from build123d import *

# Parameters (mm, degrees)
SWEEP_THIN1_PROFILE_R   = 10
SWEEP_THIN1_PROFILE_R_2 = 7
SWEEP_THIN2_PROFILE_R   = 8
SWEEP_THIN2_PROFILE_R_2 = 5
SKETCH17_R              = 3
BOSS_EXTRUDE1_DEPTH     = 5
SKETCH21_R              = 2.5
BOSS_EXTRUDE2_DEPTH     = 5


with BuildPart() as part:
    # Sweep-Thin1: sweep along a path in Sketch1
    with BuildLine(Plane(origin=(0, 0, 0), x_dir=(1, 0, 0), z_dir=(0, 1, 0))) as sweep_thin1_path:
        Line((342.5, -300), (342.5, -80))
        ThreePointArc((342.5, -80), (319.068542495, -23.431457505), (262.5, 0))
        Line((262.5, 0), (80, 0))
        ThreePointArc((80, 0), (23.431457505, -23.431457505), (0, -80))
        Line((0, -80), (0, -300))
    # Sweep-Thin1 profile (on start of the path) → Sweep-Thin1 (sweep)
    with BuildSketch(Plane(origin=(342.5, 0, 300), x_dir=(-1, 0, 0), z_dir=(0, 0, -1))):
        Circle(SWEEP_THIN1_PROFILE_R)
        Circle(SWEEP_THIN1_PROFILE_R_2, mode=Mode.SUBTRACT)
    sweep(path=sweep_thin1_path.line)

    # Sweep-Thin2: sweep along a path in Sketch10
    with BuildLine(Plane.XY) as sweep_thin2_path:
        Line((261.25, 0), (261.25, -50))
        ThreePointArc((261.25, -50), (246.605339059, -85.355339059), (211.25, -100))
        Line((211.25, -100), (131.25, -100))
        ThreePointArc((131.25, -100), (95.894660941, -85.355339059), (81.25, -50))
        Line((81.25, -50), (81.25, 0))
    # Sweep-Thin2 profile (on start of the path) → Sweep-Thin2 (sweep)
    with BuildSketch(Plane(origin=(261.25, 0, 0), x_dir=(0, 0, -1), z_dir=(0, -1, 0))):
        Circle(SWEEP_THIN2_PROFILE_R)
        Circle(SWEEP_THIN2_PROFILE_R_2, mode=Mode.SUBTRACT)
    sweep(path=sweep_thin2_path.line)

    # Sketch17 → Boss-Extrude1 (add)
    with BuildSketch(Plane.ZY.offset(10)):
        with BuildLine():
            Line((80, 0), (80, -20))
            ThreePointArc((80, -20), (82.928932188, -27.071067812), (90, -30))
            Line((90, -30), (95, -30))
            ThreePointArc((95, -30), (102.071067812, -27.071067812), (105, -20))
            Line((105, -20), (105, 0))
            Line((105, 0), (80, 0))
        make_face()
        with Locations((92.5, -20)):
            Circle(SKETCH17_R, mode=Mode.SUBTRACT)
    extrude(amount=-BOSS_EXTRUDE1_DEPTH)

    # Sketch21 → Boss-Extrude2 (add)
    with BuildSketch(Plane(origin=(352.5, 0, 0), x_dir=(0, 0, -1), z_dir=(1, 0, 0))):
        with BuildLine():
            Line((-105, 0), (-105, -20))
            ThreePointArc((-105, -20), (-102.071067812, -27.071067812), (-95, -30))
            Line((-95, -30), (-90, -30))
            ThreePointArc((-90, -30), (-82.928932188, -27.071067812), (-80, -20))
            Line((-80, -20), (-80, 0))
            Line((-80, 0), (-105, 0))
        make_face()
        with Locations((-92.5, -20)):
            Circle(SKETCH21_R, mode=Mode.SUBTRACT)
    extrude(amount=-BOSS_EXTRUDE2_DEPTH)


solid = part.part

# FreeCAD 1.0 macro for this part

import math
import FreeCAD as App
import Part
import Sketcher

doc = App.newDocument("Part")
body = doc.addObject("PartDesign::Body", "Body")

sketch1 = doc.addObject("Sketcher::SketchObject", "Sketch")
body.addObject(sketch1)
sketch1.AttachmentSupport = (doc.XY_Plane, [""])
sketch1.MapMode = "FlatFace"
sketch1.AttachmentOffset = App.Placement(App.Vector(0, 0, 300), App.Rotation())
sketch1.addGeometry(Part.Circle(App.Vector(342.5, 0, 0), App.Vector(0, 0, 1), 10), False)
sketch1.addGeometry(Part.Circle(App.Vector(342.5, 0, 0), App.Vector(0, 0, 1), 7), False)
sketch1.addConstraint(Sketcher.Constraint("Coincident", 1, 3, 0, 3))
sketch1.addConstraint(Sketcher.Constraint("PointOnObject", 0, 3, -1))
sketch1.addConstraint(Sketcher.Constraint("Diameter", 0, 20.0))
sketch1.addConstraint(Sketcher.Constraint("Diameter", 1, 14.0))
sketch1.addConstraint(Sketcher.Constraint("DistanceX", -1, 1, 0, 3, 342.5))

sketch2 = doc.addObject("Sketcher::SketchObject", "Sketch001")
body.addObject(sketch2)
sketch2.AttachmentSupport = (doc.XZ_Plane, [""])
sketch2.MapMode = "FlatFace"
sketch2.addGeometry(Part.LineSegment(App.Vector(342.5, 300, 0), App.Vector(342.5, 80, 0)), False)
sketch2.addGeometry(Part.ArcOfCircle(Part.Circle(App.Vector(262.5, 80, 0), App.Vector(0, 0, 1), 80), math.radians(-90), math.radians(0)), False)
sketch2.addGeometry(Part.LineSegment(App.Vector(262.5, 0, 0), App.Vector(80, 0, 0)), False)
sketch2.addGeometry(Part.ArcOfCircle(Part.Circle(App.Vector(80, 80, 0), App.Vector(0, 0, 1), 80), math.radians(180), math.radians(270)), False)
sketch2.addGeometry(Part.LineSegment(App.Vector(0, 80, 0), App.Vector(0, 300, 0)), False)
sketch2.addConstraint(Sketcher.Constraint("Tangent", 0, 2, 1, 2))
sketch2.addConstraint(Sketcher.Constraint("Tangent", 1, 1, 2, 1))
sketch2.addConstraint(Sketcher.Constraint("Tangent", 2, 2, 3, 2))
sketch2.addConstraint(Sketcher.Constraint("Tangent", 3, 1, 4, 1))
sketch2.addConstraint(Sketcher.Constraint("Vertical", 0))
sketch2.addConstraint(Sketcher.Constraint("Horizontal", 2))
sketch2.addConstraint(Sketcher.Constraint("Vertical", 4))
sketch2.addConstraint(Sketcher.Constraint("Equal", 1, 3))
sketch2.addConstraint(Sketcher.Constraint("PointOnObject", 1, 1, -1))
sketch2.addConstraint(Sketcher.Constraint("PointOnObject", 3, 1, -2))
sketch2.addConstraint(Sketcher.Constraint("Horizontal", 0, 1, 4, 2))
sketch2.addConstraint(Sketcher.Constraint("Radius", 1, 80.0))
sketch2.addConstraint(Sketcher.Constraint("DistanceY", 0, 2, 0, 1, 220.0))
sketch2.addConstraint(Sketcher.Constraint("DistanceX", 2, 2, 2, 1, 182.5))
doc.recompute()

additivepipe = doc.addObject("PartDesign::AdditivePipe", "AdditivePipe")
body.addObject(additivepipe)
additivepipe.Profile = sketch1
additivepipe.Spine = (sketch2, ["Edge1", "Edge2", "Edge3", "Edge4", "Edge5"])

sketch3 = doc.addObject("Sketcher::SketchObject", "Sketch002")
body.addObject(sketch3)
sketch3.AttachmentSupport = (doc.XZ_Plane, [""])
sketch3.MapMode = "FlatFace"
sketch3.addGeometry(Part.Circle(App.Vector(261.25, 0, 0), App.Vector(0, 0, 1), 8), False)
sketch3.addGeometry(Part.Circle(App.Vector(261.25, 0, 0), App.Vector(0, 0, 1), 5), False)
sketch3.addConstraint(Sketcher.Constraint("Coincident", 1, 3, 0, 3))
sketch3.addConstraint(Sketcher.Constraint("PointOnObject", 0, 3, -1))
sketch3.addConstraint(Sketcher.Constraint("Diameter", 0, 16.0))
sketch3.addConstraint(Sketcher.Constraint("Diameter", 1, 10.0))
sketch3.addConstraint(Sketcher.Constraint("DistanceX", -1, 1, 0, 3, 261.25))

sketch4 = doc.addObject("Sketcher::SketchObject", "Sketch003")
body.addObject(sketch4)
sketch4.AttachmentSupport = (doc.XY_Plane, [""])
sketch4.MapMode = "FlatFace"
sketch4.addGeometry(Part.LineSegment(App.Vector(261.25, 0, 0), App.Vector(261.25, -50, 0)), False)
sketch4.addGeometry(Part.ArcOfCircle(Part.Circle(App.Vector(211.25, -50, 0), App.Vector(0, 0, 1), 50), math.radians(-90), math.radians(0)), False)
sketch4.addGeometry(Part.LineSegment(App.Vector(211.25, -100, 0), App.Vector(131.25, -100, 0)), False)
sketch4.addGeometry(Part.ArcOfCircle(Part.Circle(App.Vector(131.25, -50, 0), App.Vector(0, 0, 1), 50), math.radians(-180), math.radians(-90)), False)
sketch4.addGeometry(Part.LineSegment(App.Vector(81.25, -50, 0), App.Vector(81.25, 0, 0)), False)
sketch4.addConstraint(Sketcher.Constraint("Tangent", 0, 2, 1, 2))
sketch4.addConstraint(Sketcher.Constraint("Tangent", 1, 1, 2, 1))
sketch4.addConstraint(Sketcher.Constraint("Tangent", 2, 2, 3, 2))
sketch4.addConstraint(Sketcher.Constraint("Tangent", 3, 1, 4, 1))
sketch4.addConstraint(Sketcher.Constraint("Vertical", 0))
sketch4.addConstraint(Sketcher.Constraint("Horizontal", 2))
sketch4.addConstraint(Sketcher.Constraint("Vertical", 4))
sketch4.addConstraint(Sketcher.Constraint("Equal", 1, 3))
sketch4.addConstraint(Sketcher.Constraint("PointOnObject", 0, 1, -1))
sketch4.addConstraint(Sketcher.Constraint("PointOnObject", 4, 2, -1))
sketch4.addConstraint(Sketcher.Constraint("Radius", 1, 50.0))
sketch4.addConstraint(Sketcher.Constraint("DistanceX", 2, 2, 2, 1, 80.0))
sketch4.addConstraint(Sketcher.Constraint("DistanceY", 0, 2, 0, 1, 50.0))
sketch4.addConstraint(Sketcher.Constraint("DistanceX", -1, 1, 1, 3, 211.25))
doc.recompute()

additivepipe2 = doc.addObject("PartDesign::AdditivePipe", "AdditivePipe001")
body.addObject(additivepipe2)
additivepipe2.Profile = sketch3
additivepipe2.Spine = (sketch4, ["Edge1", "Edge2", "Edge3", "Edge4", "Edge5"])

sketch5 = doc.addObject("Sketcher::SketchObject", "Sketch004")
body.addObject(sketch5)
sketch5.AttachmentSupport = (doc.YZ_Plane, [""])
sketch5.MapMode = "FlatFace"
sketch5.AttachmentOffset = App.Placement(App.Vector(0, 0, -10), App.Rotation())
sketch5.addGeometry(Part.LineSegment(App.Vector(0, 80, 0), App.Vector(-20, 80, 0)), False)
sketch5.addGeometry(Part.ArcOfCircle(Part.Circle(App.Vector(-20, 90, 0), App.Vector(0, 0, 1), 10), math.radians(180), math.radians(270)), False)
sketch5.addGeometry(Part.LineSegment(App.Vector(-30, 90, 0), App.Vector(-30, 95, 0)), False)
sketch5.addGeometry(Part.ArcOfCircle(Part.Circle(App.Vector(-20, 95, 0), App.Vector(0, 0, 1), 10), math.radians(90), math.radians(180)), False)
sketch5.addGeometry(Part.LineSegment(App.Vector(-20, 105, 0), App.Vector(0, 105, 0)), False)
sketch5.addGeometry(Part.LineSegment(App.Vector(0, 105, 0), App.Vector(0, 80, 0)), False)
sketch5.addGeometry(Part.Circle(App.Vector(-20, 92.5, 0), App.Vector(0, 0, 1), 3), False)
sketch5.addConstraint(Sketcher.Constraint("Tangent", 0, 2, 1, 2))
sketch5.addConstraint(Sketcher.Constraint("Tangent", 1, 1, 2, 1))
sketch5.addConstraint(Sketcher.Constraint("Tangent", 2, 2, 3, 2))
sketch5.addConstraint(Sketcher.Constraint("Tangent", 3, 1, 4, 1))
sketch5.addConstraint(Sketcher.Constraint("Coincident", 4, 2, 5, 1))
sketch5.addConstraint(Sketcher.Constraint("Coincident", 5, 2, 0, 1))
sketch5.addConstraint(Sketcher.Constraint("Horizontal", 0))
sketch5.addConstraint(Sketcher.Constraint("Vertical", 2))
sketch5.addConstraint(Sketcher.Constraint("Horizontal", 4))
sketch5.addConstraint(Sketcher.Constraint("Vertical", 5))
sketch5.addConstraint(Sketcher.Constraint("Equal", 1, 3))
sketch5.addConstraint(Sketcher.Constraint("PointOnObject", 4, 2, -2))
sketch5.addConstraint(Sketcher.Constraint("Vertical", 3, 3, 6, 3))
sketch5.addConstraint(Sketcher.Constraint("Diameter", 6, 6.0))
sketch5.addConstraint(Sketcher.Constraint("Radius", 1, 10.0))
sketch5.addConstraint(Sketcher.Constraint("DistanceX", 0, 2, 0, 1, 20.0))
sketch5.addConstraint(Sketcher.Constraint("DistanceY", 2, 1, 2, 2, 5.0))
sketch5.addConstraint(Sketcher.Constraint("DistanceY", -1, 1, 1, 3, 90.0))
sketch5.addConstraint(Sketcher.Constraint("DistanceY", -1, 1, 6, 3, 92.5))
pad1 = doc.addObject("PartDesign::Pad", "Pad")
body.addObject(pad1)
pad1.Profile = sketch5
pad1.Length = 5

sketch6 = doc.addObject("Sketcher::SketchObject", "Sketch005")
body.addObject(sketch6)
sketch6.AttachmentSupport = (doc.YZ_Plane, [""])
sketch6.MapMode = "FlatFace"
sketch6.AttachmentOffset = App.Placement(App.Vector(0, 0, 352.5), App.Rotation())
sketch6.addGeometry(Part.LineSegment(App.Vector(0, 105, 0), App.Vector(-20, 105, 0)), False)
sketch6.addGeometry(Part.ArcOfCircle(Part.Circle(App.Vector(-20, 95, 0), App.Vector(0, 0, 1), 10), math.radians(90), math.radians(180)), False)
sketch6.addGeometry(Part.LineSegment(App.Vector(-30, 95, 0), App.Vector(-30, 90, 0)), False)
sketch6.addGeometry(Part.ArcOfCircle(Part.Circle(App.Vector(-20, 90, 0), App.Vector(0, 0, 1), 10), math.radians(180), math.radians(270)), False)
sketch6.addGeometry(Part.LineSegment(App.Vector(-20, 80, 0), App.Vector(0, 80, 0)), False)
sketch6.addGeometry(Part.LineSegment(App.Vector(0, 80, 0), App.Vector(0, 105, 0)), False)
sketch6.addGeometry(Part.Circle(App.Vector(-20, 92.5, 0), App.Vector(0, 0, 1), 2.5), False)
sketch6.addConstraint(Sketcher.Constraint("Tangent", 0, 2, 1, 1))
sketch6.addConstraint(Sketcher.Constraint("Tangent", 1, 2, 2, 1))
sketch6.addConstraint(Sketcher.Constraint("Tangent", 2, 2, 3, 1))
sketch6.addConstraint(Sketcher.Constraint("Tangent", 3, 2, 4, 1))
sketch6.addConstraint(Sketcher.Constraint("Coincident", 4, 2, 5, 1))
sketch6.addConstraint(Sketcher.Constraint("Coincident", 5, 2, 0, 1))
sketch6.addConstraint(Sketcher.Constraint("Horizontal", 0))
sketch6.addConstraint(Sketcher.Constraint("Vertical", 2))
sketch6.addConstraint(Sketcher.Constraint("Horizontal", 4))
sketch6.addConstraint(Sketcher.Constraint("Vertical", 5))
sketch6.addConstraint(Sketcher.Constraint("Equal", 1, 3))
sketch6.addConstraint(Sketcher.Constraint("PointOnObject", 4, 2, -2))
sketch6.addConstraint(Sketcher.Constraint("Vertical", 3, 3, 6, 3))
sketch6.addConstraint(Sketcher.Constraint("Diameter", 6, 5.0))
sketch6.addConstraint(Sketcher.Constraint("Radius", 1, 10.0))
sketch6.addConstraint(Sketcher.Constraint("DistanceX", 0, 2, 0, 1, 20.0))
sketch6.addConstraint(Sketcher.Constraint("DistanceY", 2, 2, 2, 1, 5.0))
sketch6.addConstraint(Sketcher.Constraint("DistanceY", -1, 1, 1, 3, 95.0))
sketch6.addConstraint(Sketcher.Constraint("DistanceY", -1, 1, 6, 3, 92.5))
pad2 = doc.addObject("PartDesign::Pad", "Pad001")
body.addObject(pad2)
pad2.Profile = sketch6
pad2.Length = 5
pad2.Reversed = True

doc.recompute()
